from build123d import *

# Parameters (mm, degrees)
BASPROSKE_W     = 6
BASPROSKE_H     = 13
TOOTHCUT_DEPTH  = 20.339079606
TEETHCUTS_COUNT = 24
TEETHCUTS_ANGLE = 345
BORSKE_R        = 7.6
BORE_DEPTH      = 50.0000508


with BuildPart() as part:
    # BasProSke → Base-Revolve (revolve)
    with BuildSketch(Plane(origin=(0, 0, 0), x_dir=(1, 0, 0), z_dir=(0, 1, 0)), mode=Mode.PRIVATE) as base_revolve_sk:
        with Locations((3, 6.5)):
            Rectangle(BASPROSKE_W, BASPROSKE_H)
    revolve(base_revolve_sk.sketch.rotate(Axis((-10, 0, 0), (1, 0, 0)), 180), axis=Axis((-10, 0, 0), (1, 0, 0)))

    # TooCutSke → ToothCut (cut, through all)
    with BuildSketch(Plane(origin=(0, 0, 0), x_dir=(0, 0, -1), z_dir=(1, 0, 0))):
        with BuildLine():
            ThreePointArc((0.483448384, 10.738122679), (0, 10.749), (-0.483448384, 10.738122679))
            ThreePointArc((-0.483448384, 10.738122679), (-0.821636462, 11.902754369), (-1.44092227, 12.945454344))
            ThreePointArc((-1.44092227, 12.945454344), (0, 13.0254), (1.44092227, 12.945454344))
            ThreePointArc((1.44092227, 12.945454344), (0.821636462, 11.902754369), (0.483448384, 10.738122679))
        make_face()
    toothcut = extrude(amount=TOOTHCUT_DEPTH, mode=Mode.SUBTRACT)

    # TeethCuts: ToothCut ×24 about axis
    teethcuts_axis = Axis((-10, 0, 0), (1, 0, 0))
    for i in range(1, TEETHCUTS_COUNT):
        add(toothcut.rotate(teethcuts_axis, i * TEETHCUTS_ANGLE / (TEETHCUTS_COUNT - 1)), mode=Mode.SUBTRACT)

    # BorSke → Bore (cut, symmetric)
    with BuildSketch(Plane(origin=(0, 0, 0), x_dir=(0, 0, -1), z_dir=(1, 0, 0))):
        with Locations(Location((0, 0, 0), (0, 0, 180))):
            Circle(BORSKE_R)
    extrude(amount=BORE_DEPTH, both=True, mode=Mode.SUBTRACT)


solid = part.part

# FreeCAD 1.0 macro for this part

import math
import FreeCAD as App
import Part
import Sketcher

V = App.Vector


def add_polygon(sketch, points):
    """Adds a closed chain of lines whose ends are joined by coincident constraints."""
    first, n = sketch.GeometryCount, len(points)
    for a, b in zip(points, points[1:] + points[:1]):
        sketch.addGeometry(Part.LineSegment(App.Vector(*a, 0), App.Vector(*b, 0)), False)
    for i in range(n):
        sketch.addConstraint(Sketcher.Constraint("Coincident", first + i, 2, first + (i + 1) % n, 1))

doc = App.newDocument("Part")
body = doc.addObject("PartDesign::Body", "Body")

# Sketch on XZ plane
sketch1 = doc.addObject("Sketcher::SketchObject", "Sketch")
body.addObject(sketch1)
sketch1.AttachmentSupport = (doc.XZ_Plane, [""])
sketch1.MapMode = "FlatFace"
add_polygon(sketch1, [(0, -13), (0, 0), (6, 0), (6, -13)])  # lines 0-3
sketch1.addConstraint(Sketcher.Constraint("Vertical", 0))
sketch1.addConstraint(Sketcher.Constraint("Horizontal", 1))
sketch1.addConstraint(Sketcher.Constraint("Vertical", 2))
sketch1.addConstraint(Sketcher.Constraint("Horizontal", 3))
sketch1.addConstraint(Sketcher.Constraint("Coincident", 0, 2, -1, 1))
sketch1.addConstraint(Sketcher.Constraint("DistanceX", 1, 1, 1, 2, 6.0))
sketch1.addConstraint(Sketcher.Constraint("DistanceY", 0, 1, 0, 2, 13.0))
revolution = doc.addObject("PartDesign::Revolution", "Revolution")
body.addObject(revolution)
revolution.Profile = sketch1
revolution.ReferenceAxis = (sketch1, ["H_Axis"])
revolution.Angle = 360

# Sketch on YZ plane
sketch2 = doc.addObject("Sketcher::SketchObject", "Sketch001")
body.addObject(sketch2)
sketch2.AttachmentSupport = (doc.YZ_Plane, [""])
sketch2.MapMode = "FlatFace"
sketch2.addGeometry(Part.ArcOfCircle(Part.Circle(V(0, 0, 0), V(0, 0, 1), 10.7), math.radians(-2.58), math.radians(2.58)), False)
sketch2.addGeometry(Part.ArcOfCircle(Part.Circle(V(10, -5.2, 0), V(0, 0, 1), 4.8), math.radians(52), math.radians(81)), False)
sketch2.addGeometry(Part.ArcOfCircle(Part.Circle(V(0, 0, 0), V(0, 0, 1), 13), math.radians(-6.35), math.radians(6.35)), False)
sketch2.addGeometry(Part.ArcOfCircle(Part.Circle(V(10, 5.2, 0), V(0, 0, 1), 4.8), math.radians(-81), math.radians(-52)), False)
sketch2.addConstraint(Sketcher.Constraint("Coincident", 0, 1, 1, 2))
sketch2.addConstraint(Sketcher.Constraint("Coincident", 1, 1, 2, 1))
sketch2.addConstraint(Sketcher.Constraint("Coincident", 2, 2, 3, 2))
sketch2.addConstraint(Sketcher.Constraint("Coincident", 3, 1, 0, 2))
sketch2.addConstraint(Sketcher.Constraint("Coincident", 0, 3, -1, 1))
sketch2.addConstraint(Sketcher.Constraint("Coincident", 2, 3, -1, 1))
sketch2.addConstraint(Sketcher.Constraint("Equal", 1, 3))
sketch2.addConstraint(Sketcher.Constraint("Symmetric", 1, 3, 3, 3, -1))
sketch2.addConstraint(Sketcher.Constraint("Radius", 1, 4.8))
sketch2.addConstraint(Sketcher.Constraint("Radius", 0, 10.749))
sketch2.addConstraint(Sketcher.Constraint("Radius", 2, 13.0254))
sketch2.addConstraint(Sketcher.Constraint("DistanceY", 1, 3, -1, 1, 5.225202))
sketch2.addConstraint(Sketcher.Constraint("DistanceX", -1, 1, 1, 3, 9.992621))
pocket1 = doc.addObject("PartDesign::Pocket", "Pocket")
body.addObject(pocket1)
pocket1.Profile = sketch2
pocket1.Type = "ThroughAll"
pocket1.Reversed = True
doc.recompute()

polarpattern = doc.addObject("PartDesign::PolarPattern", "PolarPattern")
body.addObject(polarpattern)
polarpattern.Originals = [pocket1]
polarpattern.Axis = (doc.X_Axis, [""])
polarpattern.Angle = 360
polarpattern.Occurrences = 24
body.Tip = polarpattern

# Sketch on YZ plane
sketch3 = doc.addObject("Sketcher::SketchObject", "Sketch002")
body.addObject(sketch3)
sketch3.AttachmentSupport = (doc.YZ_Plane, [""])
sketch3.MapMode = "FlatFace"
sketch3.addGeometry(Part.Circle(V(0, 0, 0), V(0, 0, 1), 8), False)
sketch3.addConstraint(Sketcher.Constraint("Coincident", 0, 3, -1, 1))
sketch3.addConstraint(Sketcher.Constraint("Diameter", 0, 15.2))
pocket2 = doc.addObject("PartDesign::Pocket", "Pocket001")
body.addObject(pocket2)
pocket2.Profile = sketch3
pocket2.Length = 100.000102
pocket2.Midplane = True

doc.recompute()
